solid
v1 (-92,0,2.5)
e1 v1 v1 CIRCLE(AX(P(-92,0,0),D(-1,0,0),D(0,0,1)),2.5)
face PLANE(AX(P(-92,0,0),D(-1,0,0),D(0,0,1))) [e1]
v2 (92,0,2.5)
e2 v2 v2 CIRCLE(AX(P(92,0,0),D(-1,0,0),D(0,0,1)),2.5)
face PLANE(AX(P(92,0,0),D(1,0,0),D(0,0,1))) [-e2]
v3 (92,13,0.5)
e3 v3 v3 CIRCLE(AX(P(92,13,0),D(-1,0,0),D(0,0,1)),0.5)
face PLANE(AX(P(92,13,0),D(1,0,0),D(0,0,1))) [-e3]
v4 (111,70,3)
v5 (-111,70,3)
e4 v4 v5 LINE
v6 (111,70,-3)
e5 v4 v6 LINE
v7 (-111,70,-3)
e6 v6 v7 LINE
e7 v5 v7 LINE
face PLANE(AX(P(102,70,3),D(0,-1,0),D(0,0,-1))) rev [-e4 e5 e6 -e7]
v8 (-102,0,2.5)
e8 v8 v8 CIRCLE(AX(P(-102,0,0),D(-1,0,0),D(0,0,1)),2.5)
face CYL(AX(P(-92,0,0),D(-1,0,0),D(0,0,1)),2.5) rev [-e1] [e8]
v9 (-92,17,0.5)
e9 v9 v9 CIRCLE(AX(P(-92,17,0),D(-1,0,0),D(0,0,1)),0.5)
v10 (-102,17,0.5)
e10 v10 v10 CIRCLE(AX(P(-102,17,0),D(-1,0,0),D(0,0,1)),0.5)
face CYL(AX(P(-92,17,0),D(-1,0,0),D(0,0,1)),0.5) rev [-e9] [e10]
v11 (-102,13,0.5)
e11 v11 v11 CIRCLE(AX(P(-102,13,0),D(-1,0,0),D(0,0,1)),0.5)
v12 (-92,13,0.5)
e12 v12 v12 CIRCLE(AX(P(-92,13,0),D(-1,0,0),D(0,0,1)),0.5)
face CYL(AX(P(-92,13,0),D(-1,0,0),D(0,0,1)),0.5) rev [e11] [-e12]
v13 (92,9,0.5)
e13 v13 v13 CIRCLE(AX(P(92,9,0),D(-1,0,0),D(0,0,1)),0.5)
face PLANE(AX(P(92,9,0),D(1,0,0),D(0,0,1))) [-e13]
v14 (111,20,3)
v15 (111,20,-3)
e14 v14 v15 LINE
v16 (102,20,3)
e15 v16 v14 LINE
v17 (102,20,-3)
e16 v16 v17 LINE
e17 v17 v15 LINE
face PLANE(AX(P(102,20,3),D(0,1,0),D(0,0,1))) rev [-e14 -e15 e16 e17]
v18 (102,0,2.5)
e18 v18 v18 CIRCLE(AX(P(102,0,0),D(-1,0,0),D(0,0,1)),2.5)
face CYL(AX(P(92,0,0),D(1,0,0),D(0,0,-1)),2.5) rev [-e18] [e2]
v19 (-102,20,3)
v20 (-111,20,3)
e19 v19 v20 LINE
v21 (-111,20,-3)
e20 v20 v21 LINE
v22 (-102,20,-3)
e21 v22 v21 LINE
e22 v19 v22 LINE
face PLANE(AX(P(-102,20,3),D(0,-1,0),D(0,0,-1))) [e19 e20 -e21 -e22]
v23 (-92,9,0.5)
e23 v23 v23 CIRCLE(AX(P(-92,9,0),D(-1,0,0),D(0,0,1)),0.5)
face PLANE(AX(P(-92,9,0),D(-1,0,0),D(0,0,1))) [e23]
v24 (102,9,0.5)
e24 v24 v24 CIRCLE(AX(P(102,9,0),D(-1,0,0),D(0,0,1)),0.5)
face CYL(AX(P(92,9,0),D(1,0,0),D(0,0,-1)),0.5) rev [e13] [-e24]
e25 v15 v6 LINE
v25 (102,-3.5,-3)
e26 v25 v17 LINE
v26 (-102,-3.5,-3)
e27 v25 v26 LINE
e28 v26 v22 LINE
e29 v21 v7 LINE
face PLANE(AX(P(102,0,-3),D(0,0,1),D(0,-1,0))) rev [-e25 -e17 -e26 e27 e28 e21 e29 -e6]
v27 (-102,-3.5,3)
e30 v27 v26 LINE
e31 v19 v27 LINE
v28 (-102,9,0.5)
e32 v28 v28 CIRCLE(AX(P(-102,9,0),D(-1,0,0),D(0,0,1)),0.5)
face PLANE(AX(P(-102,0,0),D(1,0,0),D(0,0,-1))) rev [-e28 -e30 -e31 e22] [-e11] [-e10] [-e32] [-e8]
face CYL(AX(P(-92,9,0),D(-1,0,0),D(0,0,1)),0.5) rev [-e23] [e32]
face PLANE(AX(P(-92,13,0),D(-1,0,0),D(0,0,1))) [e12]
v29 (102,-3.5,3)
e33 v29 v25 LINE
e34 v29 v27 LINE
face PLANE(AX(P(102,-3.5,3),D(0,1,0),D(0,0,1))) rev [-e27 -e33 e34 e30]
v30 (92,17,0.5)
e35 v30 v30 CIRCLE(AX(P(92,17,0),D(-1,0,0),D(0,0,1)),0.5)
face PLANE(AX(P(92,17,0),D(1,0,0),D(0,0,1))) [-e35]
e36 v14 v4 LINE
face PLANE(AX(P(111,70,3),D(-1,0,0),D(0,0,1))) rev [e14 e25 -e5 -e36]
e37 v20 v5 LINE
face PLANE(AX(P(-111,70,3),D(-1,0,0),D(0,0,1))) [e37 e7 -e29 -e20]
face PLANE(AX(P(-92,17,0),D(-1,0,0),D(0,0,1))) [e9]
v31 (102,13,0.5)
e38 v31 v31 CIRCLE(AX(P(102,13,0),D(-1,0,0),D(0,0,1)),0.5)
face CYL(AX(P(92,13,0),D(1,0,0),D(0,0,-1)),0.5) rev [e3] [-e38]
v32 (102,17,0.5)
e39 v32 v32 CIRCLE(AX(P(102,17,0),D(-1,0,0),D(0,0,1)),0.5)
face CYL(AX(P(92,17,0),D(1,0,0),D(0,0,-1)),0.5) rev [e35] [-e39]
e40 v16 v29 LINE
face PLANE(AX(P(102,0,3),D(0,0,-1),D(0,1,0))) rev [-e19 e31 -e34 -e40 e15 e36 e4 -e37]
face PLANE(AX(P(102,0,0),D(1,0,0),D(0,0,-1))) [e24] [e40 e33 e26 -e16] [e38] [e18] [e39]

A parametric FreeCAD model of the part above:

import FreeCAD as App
import Part
import Sketcher


def add_polygon(sketch, points):
    """Adds a closed chain of lines whose ends are joined by coincident constraints."""
    first, n = sketch.GeometryCount, len(points)
    for a, b in zip(points, points[1:] + points[:1]):
        sketch.addGeometry(Part.LineSegment(App.Vector(*a, 0), App.Vector(*b, 0)), False)
    for i in range(n):
        sketch.addConstraint(Sketcher.Constraint("Coincident", first + i, 2, first + (i + 1) % n, 1))

doc = App.newDocument("Part")
body = doc.addObject("PartDesign::Body", "Body")

# Sketch on YZ plane
sketch1 = body.newObject("Sketcher::SketchObject", "Sketch")
sketch1.AttachmentSupport = (doc.getObject("YZ_Plane"), [""])
sketch1.MapMode = "FlatFace"
add_polygon(sketch1, [(70, 3), (-4, 3), (-4, -3), (70, -3)])  # lines 0-3
sketch1.addConstraint([
    Sketcher.Constraint("Horizontal", 0),
    Sketcher.Constraint("Vertical", 1),
    Sketcher.Constraint("Horizontal", 2),
    Sketcher.Constraint("Vertical", 3),
    Sketcher.Constraint("DistanceY", 1, 2, 1, 1, 6.0),
    Sketcher.Constraint("DistanceX", 0, 2, 0, 1, 73.5),
    Sketcher.Constraint("DistanceY", -1, 1, 0, 2, 3.0),
    Sketcher.Constraint("DistanceX", -1, 1, 2, 2, 70.0),
])
pad1 = body.newObject("PartDesign::Pad", "Pad")
pad1.Profile = sketch1
pad1.Length = 204
pad1.Midplane = True

# Sketch on XY plane
sketch2 = body.newObject("Sketcher::SketchObject", "Sketch001")
sketch2.AttachmentSupport = (doc.getObject("XY_Plane"), [""])
sketch2.MapMode = "FlatFace"
sketch2.AttachmentOffset = App.Placement(App.Vector(0, 0, -3), App.Rotation())
add_polygon(sketch2, [(-102, 70), (-102, 20), (-111, 20), (-111, 70)])  # lines 0-3
sketch2.addConstraint([
    Sketcher.Constraint("Vertical", 0),
    Sketcher.Constraint("Horizontal", 1),
    Sketcher.Constraint("Vertical", 2),
    Sketcher.Constraint("Horizontal", 3),
    Sketcher.Constraint("DistanceX", 1, 2, 1, 1, 9.0),
    Sketcher.Constraint("DistanceY", 0, 2, 0, 1, 50.0),
    Sketcher.Constraint("DistanceX", 0, 2, -1, 1, 102.0),
    Sketcher.Constraint("DistanceY", -1, 1, 0, 2, 20.0),
])
pad2 = body.newObject("PartDesign::Pad", "Pad001")
pad2.Profile = sketch2
pad2.Length = 6

# Sketch on YZ plane
sketch3 = body.newObject("Sketcher::SketchObject", "Sketch002")
sketch3.AttachmentSupport = (doc.getObject("YZ_Plane"), [""])
sketch3.MapMode = "FlatFace"
sketch3.AttachmentOffset = App.Placement(App.Vector(0, 0, -102), App.Rotation())
sketch3.addGeometry([
    Part.Circle(App.Vector(17, 0, 0), App.Vector(0, 0, 1), 0.5),
    Part.Circle(App.Vector(0, 0, 0), App.Vector(0, 0, 1), 2.5),
    Part.Circle(App.Vector(13, 0, 0), App.Vector(0, 0, 1), 0.5),
    Part.Circle(App.Vector(9, 0, 0), App.Vector(0, 0, 1), 0.5),
], False)
sketch3.addConstraint([
    Sketcher.Constraint("Coincident", 1, 3, -1, 1),
    Sketcher.Constraint("Equal", 0, 2),
    Sketcher.Constraint("Equal", 2, 3),
    Sketcher.Constraint("PointOnObject", 0, 3, -1),
    Sketcher.Constraint("PointOnObject", 2, 3, -1),
    Sketcher.Constraint("PointOnObject", 3, 3, -1),
    Sketcher.Constraint("Diameter", 0, 1.0),
    Sketcher.Constraint("Diameter", 1, 5.0),
    Sketcher.Constraint("DistanceX", -1, 1, 0, 3, 17.0),
    Sketcher.Constraint("DistanceX", -1, 1, 2, 3, 13.0),
    Sketcher.Constraint("DistanceX", -1, 1, 3, 3, 9.0),
])
pocket1 = body.newObject("PartDesign::Pocket", "Pocket")
pocket1.Profile = sketch3
pocket1.Length = 10
pocket1.Reversed = True
doc.recompute()

mirrored = body.newObject("PartDesign::Mirrored", "Mirrored")
mirrored.Originals = [pad2, pocket1]
mirrored.MirrorPlane = (doc.getObject("YZ_Plane"), [""])
body.Tip = mirrored

doc.recompute()
